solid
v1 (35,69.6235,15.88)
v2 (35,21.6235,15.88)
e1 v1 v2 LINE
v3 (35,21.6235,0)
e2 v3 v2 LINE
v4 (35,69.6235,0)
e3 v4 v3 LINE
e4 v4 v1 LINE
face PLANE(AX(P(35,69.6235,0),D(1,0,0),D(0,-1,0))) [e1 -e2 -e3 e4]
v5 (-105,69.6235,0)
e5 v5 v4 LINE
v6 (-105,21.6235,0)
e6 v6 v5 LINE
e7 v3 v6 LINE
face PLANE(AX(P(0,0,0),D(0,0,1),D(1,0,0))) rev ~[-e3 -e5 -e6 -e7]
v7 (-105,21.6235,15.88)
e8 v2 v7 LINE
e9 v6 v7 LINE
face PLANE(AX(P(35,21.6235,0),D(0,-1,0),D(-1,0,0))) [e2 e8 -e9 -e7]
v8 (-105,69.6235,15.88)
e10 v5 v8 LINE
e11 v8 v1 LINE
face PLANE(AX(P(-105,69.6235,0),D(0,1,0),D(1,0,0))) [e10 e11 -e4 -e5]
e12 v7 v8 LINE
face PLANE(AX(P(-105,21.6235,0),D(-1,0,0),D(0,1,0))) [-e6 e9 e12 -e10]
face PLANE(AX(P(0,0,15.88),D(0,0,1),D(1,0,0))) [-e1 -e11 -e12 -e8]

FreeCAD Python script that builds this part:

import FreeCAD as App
import Part
import Sketcher


def add_polygon(sketch, points):
    """Adds a closed chain of lines whose ends are joined by coincident constraints."""
    first, n = sketch.GeometryCount, len(points)
    for a, b in zip(points, points[1:] + points[:1]):
        sketch.addGeometry(Part.LineSegment(App.Vector(*a, 0), App.Vector(*b, 0)), False)
    for i in range(n):
        sketch.addConstraint(Sketcher.Constraint("Coincident", first + i, 2, first + (i + 1) % n, 1))

doc = App.newDocument("Part")
body = doc.addObject("PartDesign::Body", "Body")

# Sketch on XY plane
sketch1 = body.newObject("Sketcher::SketchObject", "Sketch")
sketch1.AttachmentSupport = (doc.getObject("XY_Plane"), [""])
sketch1.MapMode = "FlatFace"
add_polygon(sketch1, [(-105, 22), (35, 22), (35, 70), (-105, 70)])  # lines 0-3
sketch1.addConstraint([
    Sketcher.Constraint("Horizontal", 0),
    Sketcher.Constraint("Vertical", 1),
    Sketcher.Constraint("Horizontal", 2),
    Sketcher.Constraint("Vertical", 3),
    Sketcher.Constraint("DistanceX", 0, 1, 0, 2, 140.0),
    Sketcher.Constraint("DistanceY", 1, 1, 1, 2, 48.0),
    Sketcher.Constraint("DistanceX", -1, 1, 0, 2, 35.0),
    Sketcher.Constraint("DistanceY", -1, 1, 0, 2, 21.6235),
])
pad1 = body.newObject("PartDesign::Pad", "Pad")
pad1.Profile = sketch1
pad1.Length = 15.88

doc.recompute()
